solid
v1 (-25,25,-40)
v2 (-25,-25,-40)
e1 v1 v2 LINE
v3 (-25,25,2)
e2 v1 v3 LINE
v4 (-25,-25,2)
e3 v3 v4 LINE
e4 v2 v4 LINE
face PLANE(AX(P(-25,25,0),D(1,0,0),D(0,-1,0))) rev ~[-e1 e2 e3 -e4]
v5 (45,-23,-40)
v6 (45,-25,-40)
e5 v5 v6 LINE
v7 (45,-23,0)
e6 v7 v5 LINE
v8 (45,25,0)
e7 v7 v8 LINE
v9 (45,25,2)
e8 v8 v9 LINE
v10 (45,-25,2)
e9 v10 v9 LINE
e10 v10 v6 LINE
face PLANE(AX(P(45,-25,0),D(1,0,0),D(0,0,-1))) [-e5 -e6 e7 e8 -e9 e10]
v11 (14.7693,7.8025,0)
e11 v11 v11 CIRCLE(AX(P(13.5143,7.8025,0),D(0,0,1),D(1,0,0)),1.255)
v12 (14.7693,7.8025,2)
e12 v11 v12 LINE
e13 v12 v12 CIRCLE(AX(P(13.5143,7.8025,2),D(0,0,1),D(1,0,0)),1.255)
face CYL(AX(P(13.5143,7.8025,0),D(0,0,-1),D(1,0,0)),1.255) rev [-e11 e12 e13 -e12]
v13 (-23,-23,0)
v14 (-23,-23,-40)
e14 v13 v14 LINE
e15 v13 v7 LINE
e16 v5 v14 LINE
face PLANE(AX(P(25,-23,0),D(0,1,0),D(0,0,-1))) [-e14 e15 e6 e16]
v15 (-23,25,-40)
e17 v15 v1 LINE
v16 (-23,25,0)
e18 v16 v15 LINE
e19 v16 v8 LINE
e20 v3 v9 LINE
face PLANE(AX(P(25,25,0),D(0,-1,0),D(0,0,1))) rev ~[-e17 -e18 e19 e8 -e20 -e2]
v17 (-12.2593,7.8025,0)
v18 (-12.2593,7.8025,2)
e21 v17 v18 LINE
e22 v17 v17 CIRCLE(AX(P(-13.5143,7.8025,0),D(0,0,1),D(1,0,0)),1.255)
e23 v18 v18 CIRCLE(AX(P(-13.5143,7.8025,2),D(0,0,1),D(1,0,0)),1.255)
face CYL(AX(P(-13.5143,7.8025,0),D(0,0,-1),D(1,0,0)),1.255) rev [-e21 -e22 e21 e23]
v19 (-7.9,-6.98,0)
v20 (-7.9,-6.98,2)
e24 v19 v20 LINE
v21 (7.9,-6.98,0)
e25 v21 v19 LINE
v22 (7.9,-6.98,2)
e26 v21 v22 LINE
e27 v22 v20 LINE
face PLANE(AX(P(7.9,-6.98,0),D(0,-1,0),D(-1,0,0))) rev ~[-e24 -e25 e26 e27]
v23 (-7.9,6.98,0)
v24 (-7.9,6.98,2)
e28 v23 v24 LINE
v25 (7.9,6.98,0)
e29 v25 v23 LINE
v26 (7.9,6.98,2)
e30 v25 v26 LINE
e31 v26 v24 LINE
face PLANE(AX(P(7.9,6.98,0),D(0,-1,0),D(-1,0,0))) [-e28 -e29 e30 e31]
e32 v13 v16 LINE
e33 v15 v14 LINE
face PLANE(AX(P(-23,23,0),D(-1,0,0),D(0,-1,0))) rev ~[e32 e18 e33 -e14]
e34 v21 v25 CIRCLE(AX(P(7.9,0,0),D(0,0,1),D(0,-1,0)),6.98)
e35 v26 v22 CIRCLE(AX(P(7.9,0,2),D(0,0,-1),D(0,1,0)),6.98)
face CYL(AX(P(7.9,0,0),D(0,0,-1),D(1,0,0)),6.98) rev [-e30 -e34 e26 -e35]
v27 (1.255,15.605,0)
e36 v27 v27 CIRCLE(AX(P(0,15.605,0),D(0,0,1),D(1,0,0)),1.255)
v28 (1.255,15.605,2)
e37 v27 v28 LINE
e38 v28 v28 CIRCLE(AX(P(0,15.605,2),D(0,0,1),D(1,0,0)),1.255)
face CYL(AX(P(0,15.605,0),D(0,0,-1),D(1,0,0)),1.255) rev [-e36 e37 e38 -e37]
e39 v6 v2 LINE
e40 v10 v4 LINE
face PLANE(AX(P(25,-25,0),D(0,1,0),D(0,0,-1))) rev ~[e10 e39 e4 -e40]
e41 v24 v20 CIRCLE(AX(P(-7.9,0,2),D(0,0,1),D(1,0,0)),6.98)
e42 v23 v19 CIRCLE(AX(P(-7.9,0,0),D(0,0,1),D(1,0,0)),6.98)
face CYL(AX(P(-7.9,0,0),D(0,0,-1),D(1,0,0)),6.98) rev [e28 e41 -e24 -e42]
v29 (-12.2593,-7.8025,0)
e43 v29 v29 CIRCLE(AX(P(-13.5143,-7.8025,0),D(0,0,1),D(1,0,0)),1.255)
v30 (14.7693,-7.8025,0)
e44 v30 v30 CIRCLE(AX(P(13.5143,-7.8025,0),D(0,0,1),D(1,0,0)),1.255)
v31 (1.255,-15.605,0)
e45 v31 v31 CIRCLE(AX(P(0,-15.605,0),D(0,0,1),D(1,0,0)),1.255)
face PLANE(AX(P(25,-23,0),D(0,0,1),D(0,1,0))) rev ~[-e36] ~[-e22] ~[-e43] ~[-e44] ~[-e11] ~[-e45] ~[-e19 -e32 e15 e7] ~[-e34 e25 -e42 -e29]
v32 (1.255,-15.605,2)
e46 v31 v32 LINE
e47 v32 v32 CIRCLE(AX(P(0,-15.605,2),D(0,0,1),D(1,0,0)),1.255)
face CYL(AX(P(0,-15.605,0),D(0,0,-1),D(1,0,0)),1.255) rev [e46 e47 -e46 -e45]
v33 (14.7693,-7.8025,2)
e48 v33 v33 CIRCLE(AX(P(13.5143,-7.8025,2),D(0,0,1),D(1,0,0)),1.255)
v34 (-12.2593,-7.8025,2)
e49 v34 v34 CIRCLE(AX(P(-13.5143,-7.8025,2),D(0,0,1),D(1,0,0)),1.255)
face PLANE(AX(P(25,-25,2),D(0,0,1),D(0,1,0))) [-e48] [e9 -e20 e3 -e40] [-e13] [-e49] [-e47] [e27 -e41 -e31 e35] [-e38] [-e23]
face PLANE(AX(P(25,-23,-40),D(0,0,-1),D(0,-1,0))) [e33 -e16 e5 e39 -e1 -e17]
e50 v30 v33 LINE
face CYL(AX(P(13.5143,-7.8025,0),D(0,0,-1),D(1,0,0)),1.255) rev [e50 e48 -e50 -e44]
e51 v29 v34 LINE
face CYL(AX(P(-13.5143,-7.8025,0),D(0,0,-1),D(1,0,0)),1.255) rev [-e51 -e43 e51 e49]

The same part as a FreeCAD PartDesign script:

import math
import FreeCAD as App
import Part
import Sketcher

V = App.Vector


def add_polygon(sketch, points):
    """Adds a closed chain of lines whose ends are joined by coincident constraints."""
    first, n = sketch.GeometryCount, len(points)
    for a, b in zip(points, points[1:] + points[:1]):
        sketch.addGeometry(Part.LineSegment(App.Vector(*a, 0), App.Vector(*b, 0)), False)
    for i in range(n):
        sketch.addConstraint(Sketcher.Constraint("Coincident", first + i, 2, first + (i + 1) % n, 1))

doc = App.newDocument("Part")
params = doc.addObject("Spreadsheet::Sheet", "Params")
for row, (alias, value) in enumerate([
    ("sketch1_width", "50 mm"),
    ("sketch1_width2", "15.8 mm"),
    ("sketch1_diameter", "2.51 mm"),
    ("sketch1_radius", "6.98 mm"),
    ("pad1_length", "2 mm"),
    ("sketch2_width", "2 mm"),
    ("sketch2_width2", "50 mm"),
    ("pad2_length", "40 mm"),
    ("sketch3_width", "48 mm"),
    ("sketch3_width2", "50 mm"),
    ("sketch3_height", "40 mm"),
    ("pad3_length", "20 mm"),
], start=1):
    params.set(f"A{row}", alias)
    params.set(f"B{row}", "=" + value)
    params.setAlias(f"B{row}", alias)

body = doc.addObject("PartDesign::Body", "Body")

sketch1 = body.newObject("Sketcher::SketchObject", "Sketch")
sketch1.AttachmentSupport = (doc.getObject("XY_Plane"), [""])
sketch1.MapMode = "FlatFace"
add_polygon(sketch1, [(25, 25), (-25, 25), (-25, -25), (25, -25)])
sketch1.addGeometry(Part.Circle(V(-13.5, -7.8, 0), V(0, 0, 1), 1.3), False)
sketch1.addGeometry(Part.Circle(V(0, -15.6, 0), V(0, 0, 1), 1.3), False)
sketch1.addGeometry(Part.Circle(V(13.5, -7.8, 0), V(0, 0, 1), 1.3), False)
sketch1.addGeometry(Part.Circle(V(-13.5, 7.8, 0), V(0, 0, 1), 1.3), False)
sketch1.addGeometry(Part.ArcOfCircle(Part.Circle(V(7.9, 0, 0), V(0, 0, 1), 7), math.radians(-90), math.radians(90)), False)
sketch1.addGeometry(Part.LineSegment(V(7.9, -7, 0), V(-7.9, -7, 0)), False)
sketch1.addGeometry(Part.ArcOfCircle(Part.Circle(V(-7.9, 0, 0), V(0, 0, 1), 7), math.radians(90), math.radians(270)), False)
sketch1.addGeometry(Part.LineSegment(V(-7.9, 7, 0), V(7.9, 7, 0)), False)
sketch1.addGeometry(Part.Circle(V(13.5, 7.8, 0), V(0, 0, 1), 1.3), False)
sketch1.addGeometry(Part.Circle(V(0, 15.6, 0), V(0, 0, 1), 1.3), False)
sketch1.addConstraint([
    Sketcher.Constraint("Tangent", 8, 1, 9, 1),
    Sketcher.Constraint("Tangent", 9, 2, 10, 2),
    Sketcher.Constraint("Tangent", 10, 1, 11, 1),
    Sketcher.Constraint("Tangent", 11, 2, 8, 2),
    Sketcher.Constraint("Horizontal", 0),
    Sketcher.Constraint("Vertical", 1),
    Sketcher.Constraint("Horizontal", 2),
    Sketcher.Constraint("Vertical", 3),
    Sketcher.Constraint("Horizontal", 9),
    Sketcher.Constraint("Horizontal", 11),
    Sketcher.Constraint("Equal", 4, 5),
    Sketcher.Constraint("Equal", 5, 6),
    Sketcher.Constraint("Equal", 6, 7),
    Sketcher.Constraint("Equal", 7, 12),
    Sketcher.Constraint("Equal", 12, 13),
    Sketcher.Constraint("Symmetric", 6, 3, 7, 3, -1, 1),
    Sketcher.Constraint("Symmetric", 8, 3, 10, 3, -1, 1),
    Sketcher.Constraint("Symmetric", 4, 3, 12, 3, -1, 1),
    Sketcher.Constraint("Symmetric", 5, 3, 13, 3, -1, 1),
    Sketcher.Constraint("Symmetric", 0, 2, 2, 2, -1, 1),
    Sketcher.Constraint("Symmetric", 4, 3, 6, 3, -2),
    Sketcher.Constraint("PointOnObject", 5, 3, -2),
    Sketcher.Constraint("Equal", 2, 1),
    Sketcher.Constraint("DistanceX", 0, 2, 0, 1, 50.0),
    Sketcher.Constraint("DistanceX", 9, 2, 9, 1, 15.8),
    Sketcher.Constraint("Diameter", 4, 2.51),
    Sketcher.Constraint("Radius", 8, 6.98),
    Sketcher.Constraint("DistanceY", 5, 3, -1, 1, 15.605),
    Sketcher.Constraint("DistanceY", 4, 3, 7, 3, 15.605),
    Sketcher.Constraint("DistanceX", 4, 3, -1, 1, 13.5143),
])
sketch1.setExpression("Constraints[27]", "Params.sketch1_width")
sketch1.setExpression("Constraints[28]", "Params.sketch1_width2")
sketch1.setExpression("Constraints[29]", "Params.sketch1_diameter")
sketch1.setExpression("Constraints[30]", "Params.sketch1_radius")
pad1 = body.newObject("PartDesign::Pad", "Pad")
pad1.Profile = sketch1
pad1.setExpression("Length", "Params.pad1_length")

sketch2 = body.newObject("Sketcher::SketchObject", "Sketch001")
sketch2.AttachmentSupport = (doc.getObject("XY_Plane"), [""])
sketch2.MapMode = "FlatFace"
add_polygon(sketch2, [(25, -25), (25, -23), (-23, -23), (-23, 25), (-25, 25), (-25, -25)])
sketch2.addConstraint([
    Sketcher.Constraint("Vertical", 0),
    Sketcher.Constraint("Horizontal", 1),
    Sketcher.Constraint("Vertical", 2),
    Sketcher.Constraint("Horizontal", 3),
    Sketcher.Constraint("Vertical", 4),
    Sketcher.Constraint("Horizontal", 5),
    Sketcher.Constraint("Symmetric", 3, 2, 5, 2, -1, 1),
    Sketcher.Constraint("Equal", 3, 0),
    Sketcher.Constraint("Equal", 1, 2),
    Sketcher.Constraint("DistanceX", 3, 2, 3, 1, 2.0),
    Sketcher.Constraint("DistanceX", 5, 1, 5, 2, 50.0),
])
sketch2.setExpression("Constraints[15]", "Params.sketch2_width")
sketch2.setExpression("Constraints[16]", "Params.sketch2_width2")
pad2 = body.newObject("PartDesign::Pad", "Pad001")
pad2.Profile = sketch2
pad2.setExpression("Length", "Params.pad2_length")
pad2.Reversed = True

sketch3 = body.newObject("Sketcher::SketchObject", "Sketch002")
sketch3.AttachmentSupport = (doc.getObject("YZ_Plane"), [""])
sketch3.MapMode = "FlatFace"
sketch3.AttachmentOffset = App.Placement(V(0, 0, 25), App.Rotation())
add_polygon(sketch3, [(-23, -40), (-23, 0), (25, 0), (25, 2), (-25, 2), (-25, -40)])
sketch3.addConstraint([
    Sketcher.Constraint("Vertical", 0),
    Sketcher.Constraint("Horizontal", 1),
    Sketcher.Constraint("Vertical", 2),
    Sketcher.Constraint("Horizontal", 3),
    Sketcher.Constraint("Vertical", 4),
    Sketcher.Constraint("Horizontal", 5),
    Sketcher.Constraint("PointOnObject", 0, 2, -1),
    Sketcher.Constraint("Equal", 5, 2),
    Sketcher.Constraint("DistanceX", 1, 1, 1, 2, 48.0),
    Sketcher.Constraint("DistanceX", 3, 2, 3, 1, 50.0),
    Sketcher.Constraint("DistanceY", 0, 1, 0, 2, 40.0),
    Sketcher.Constraint("DistanceX", 0, 2, -1, 1, 23.0),
])
sketch3.setExpression("Constraints[14]", "Params.sketch3_width")
sketch3.setExpression("Constraints[15]", "Params.sketch3_width2")
sketch3.setExpression("Constraints[16]", "Params.sketch3_height")
pad3 = body.newObject("PartDesign::Pad", "Pad002")
pad3.Profile = sketch3
pad3.setExpression("Length", "Params.pad3_length")

doc.recompute()
